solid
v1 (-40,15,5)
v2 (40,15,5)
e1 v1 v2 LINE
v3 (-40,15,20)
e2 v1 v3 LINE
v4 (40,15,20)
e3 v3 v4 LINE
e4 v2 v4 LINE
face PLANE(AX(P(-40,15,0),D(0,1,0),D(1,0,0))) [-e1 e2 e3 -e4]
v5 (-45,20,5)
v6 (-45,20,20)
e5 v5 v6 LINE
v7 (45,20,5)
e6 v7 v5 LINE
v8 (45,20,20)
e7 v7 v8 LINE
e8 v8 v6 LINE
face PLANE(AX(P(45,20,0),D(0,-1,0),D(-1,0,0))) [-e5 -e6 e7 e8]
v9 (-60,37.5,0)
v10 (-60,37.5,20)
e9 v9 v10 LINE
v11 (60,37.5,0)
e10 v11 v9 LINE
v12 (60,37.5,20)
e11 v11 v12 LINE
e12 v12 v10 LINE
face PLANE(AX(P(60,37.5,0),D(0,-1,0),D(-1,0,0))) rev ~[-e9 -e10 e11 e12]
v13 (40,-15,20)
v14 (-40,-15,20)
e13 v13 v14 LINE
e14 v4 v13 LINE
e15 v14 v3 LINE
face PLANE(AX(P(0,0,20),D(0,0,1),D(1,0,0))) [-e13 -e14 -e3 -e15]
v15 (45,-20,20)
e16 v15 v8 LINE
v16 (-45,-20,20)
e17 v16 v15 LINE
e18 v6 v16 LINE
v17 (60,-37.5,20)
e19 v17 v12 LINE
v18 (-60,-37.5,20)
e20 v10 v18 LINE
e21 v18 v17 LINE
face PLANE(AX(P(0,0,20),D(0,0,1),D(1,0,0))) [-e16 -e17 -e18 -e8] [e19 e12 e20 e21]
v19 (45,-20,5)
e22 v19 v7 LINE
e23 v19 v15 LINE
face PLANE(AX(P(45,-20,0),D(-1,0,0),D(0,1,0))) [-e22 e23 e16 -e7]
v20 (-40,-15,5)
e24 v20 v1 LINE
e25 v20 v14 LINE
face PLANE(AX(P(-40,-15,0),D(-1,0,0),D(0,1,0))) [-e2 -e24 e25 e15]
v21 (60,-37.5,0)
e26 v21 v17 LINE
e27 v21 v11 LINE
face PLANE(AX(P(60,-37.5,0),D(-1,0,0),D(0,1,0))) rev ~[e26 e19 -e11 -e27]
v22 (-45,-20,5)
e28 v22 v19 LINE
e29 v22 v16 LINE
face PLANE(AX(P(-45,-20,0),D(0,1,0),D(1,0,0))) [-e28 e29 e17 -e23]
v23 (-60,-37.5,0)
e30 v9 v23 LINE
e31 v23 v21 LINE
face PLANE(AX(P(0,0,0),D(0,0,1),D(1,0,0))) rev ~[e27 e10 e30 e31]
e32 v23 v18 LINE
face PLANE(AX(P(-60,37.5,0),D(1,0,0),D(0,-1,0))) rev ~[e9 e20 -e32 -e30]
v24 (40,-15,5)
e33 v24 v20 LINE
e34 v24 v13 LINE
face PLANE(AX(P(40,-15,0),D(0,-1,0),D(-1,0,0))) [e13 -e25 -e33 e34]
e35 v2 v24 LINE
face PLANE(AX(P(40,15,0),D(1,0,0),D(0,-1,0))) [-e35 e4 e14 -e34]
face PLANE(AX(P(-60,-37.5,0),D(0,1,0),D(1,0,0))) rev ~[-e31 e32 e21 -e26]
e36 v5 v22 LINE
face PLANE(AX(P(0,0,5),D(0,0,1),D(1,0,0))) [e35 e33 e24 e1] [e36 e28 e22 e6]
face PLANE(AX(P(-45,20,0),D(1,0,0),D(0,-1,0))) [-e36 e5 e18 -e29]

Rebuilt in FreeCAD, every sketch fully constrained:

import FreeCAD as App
import Part
import Sketcher
Q = App.Units.Quantity

doc = App.newDocument("Part")
body = doc.addObject("PartDesign::Body", "Body")
body.AllowCompound = True

# Sketch on XY plane
sketch1 = doc.addObject("Sketcher::SketchObject", "Sketch")
body.addObject(sketch1)
sketch1.AttachmentSupport = (doc.XY_Plane, [""])
sketch1.MapMode = "FlatFace"
sketch1.addGeometry(Part.LineSegment(App.Vector(60, -38, 0), App.Vector(60, 38, 0)), False)
sketch1.addGeometry(Part.LineSegment(App.Vector(60, 38, 0), App.Vector(-60, 38, 0)), False)
sketch1.addGeometry(Part.LineSegment(App.Vector(-60, 38, 0), App.Vector(-60, -38, 0)), False)
sketch1.addGeometry(Part.LineSegment(App.Vector(-60, -38, 0), App.Vector(60, -38, 0)), False)
sketch1.addGeometry(Part.LineSegment(App.Vector(-45, 20, 0), App.Vector(45, 20, 0)), False)
sketch1.addGeometry(Part.LineSegment(App.Vector(45, 20, 0), App.Vector(45, -20, 0)), False)
sketch1.addGeometry(Part.LineSegment(App.Vector(45, -20, 0), App.Vector(-45, -20, 0)), False)
sketch1.addGeometry(Part.LineSegment(App.Vector(-45, -20, 0), App.Vector(-45, 20, 0)), False)
sketch1.addGeometry(Part.LineSegment(App.Vector(40, 15, 0), App.Vector(-40, 15, 0)), False)
sketch1.addGeometry(Part.LineSegment(App.Vector(-40, 15, 0), App.Vector(-40, -15, 0)), False)
sketch1.addGeometry(Part.LineSegment(App.Vector(-40, -15, 0), App.Vector(40, -15, 0)), False)
sketch1.addGeometry(Part.LineSegment(App.Vector(40, -15, 0), App.Vector(40, 15, 0)), False)
sketch1.addConstraint(Sketcher.Constraint("Coincident", 0, 2, 1, 1))
sketch1.addConstraint(Sketcher.Constraint("Coincident", 1, 2, 2, 1))
sketch1.addConstraint(Sketcher.Constraint("Coincident", 2, 2, 3, 1))
sketch1.addConstraint(Sketcher.Constraint("Coincident", 3, 2, 0, 1))
sketch1.addConstraint(Sketcher.Constraint("Coincident", 4, 2, 5, 1))
sketch1.addConstraint(Sketcher.Constraint("Coincident", 5, 2, 6, 1))
sketch1.addConstraint(Sketcher.Constraint("Coincident", 6, 2, 7, 1))
sketch1.addConstraint(Sketcher.Constraint("Coincident", 7, 2, 4, 1))
sketch1.addConstraint(Sketcher.Constraint("Coincident", 8, 2, 9, 1))
sketch1.addConstraint(Sketcher.Constraint("Coincident", 9, 2, 10, 1))
sketch1.addConstraint(Sketcher.Constraint("Coincident", 10, 2, 11, 1))
sketch1.addConstraint(Sketcher.Constraint("Coincident", 11, 2, 8, 1))
sketch1.addConstraint(Sketcher.Constraint("Vertical", 0))
sketch1.addConstraint(Sketcher.Constraint("Horizontal", 1))
sketch1.addConstraint(Sketcher.Constraint("Vertical", 2))
sketch1.addConstraint(Sketcher.Constraint("Horizontal", 3))
sketch1.addConstraint(Sketcher.Constraint("Horizontal", 4))
sketch1.addConstraint(Sketcher.Constraint("Vertical", 5))
sketch1.addConstraint(Sketcher.Constraint("Horizontal", 6))
sketch1.addConstraint(Sketcher.Constraint("Vertical", 7))
sketch1.addConstraint(Sketcher.Constraint("Horizontal", 8))
sketch1.addConstraint(Sketcher.Constraint("Vertical", 9))
sketch1.addConstraint(Sketcher.Constraint("Horizontal", 10))
sketch1.addConstraint(Sketcher.Constraint("Vertical", 11))
sketch1.addConstraint(Sketcher.Constraint("Symmetric", 0, 2, 2, 2, -1, 1))
sketch1.addConstraint(Sketcher.Constraint("Symmetric", 4, 2, 6, 2, -1, 1))
sketch1.addConstraint(Sketcher.Constraint("Symmetric", 8, 2, 10, 2, -1, 1))
sketch1.addConstraint(Sketcher.Constraint("DistanceX", 1, 2, 1, 1, Q("120 mm")))
sketch1.addConstraint(Sketcher.Constraint("DistanceX", 4, 1, 4, 2, Q("90 mm")))
sketch1.addConstraint(Sketcher.Constraint("DistanceX", 8, 2, 8, 1, Q("80 mm")))
sketch1.addConstraint(Sketcher.Constraint("DistanceY", 0, 1, 0, 2, Q("75 mm")))
sketch1.addConstraint(Sketcher.Constraint("DistanceY", 5, 2, 5, 1, Q("40 mm")))
sketch1.addConstraint(Sketcher.Constraint("DistanceY", 9, 2, 9, 1, Q("30 mm")))
pad1 = doc.addObject("PartDesign::Pad", "Pad")
body.addObject(pad1)
pad1.Profile = sketch1
pad1.Length = 20

# Sketch on XY plane
sketch2 = doc.addObject("Sketcher::SketchObject", "Sketch001")
body.addObject(sketch2)
sketch2.AttachmentSupport = (doc.XY_Plane, [""])
sketch2.MapMode = "FlatFace"
sketch2.addGeometry(Part.LineSegment(App.Vector(45, -20, 0), App.Vector(45, 20, 0)), False)
sketch2.addGeometry(Part.LineSegment(App.Vector(45, 20, 0), App.Vector(-45, 20, 0)), False)
sketch2.addGeometry(Part.LineSegment(App.Vector(-45, 20, 0), App.Vector(-45, -20, 0)), False)
sketch2.addGeometry(Part.LineSegment(App.Vector(-45, -20, 0), App.Vector(45, -20, 0)), False)
sketch2.addGeometry(Part.LineSegment(App.Vector(-40, -15, 0), App.Vector(-40, 15, 0)), False)
sketch2.addGeometry(Part.LineSegment(App.Vector(-40, 15, 0), App.Vector(40, 15, 0)), False)
sketch2.addGeometry(Part.LineSegment(App.Vector(40, 15, 0), App.Vector(40, -15, 0)), False)
sketch2.addGeometry(Part.LineSegment(App.Vector(40, -15, 0), App.Vector(-40, -15, 0)), False)
sketch2.addConstraint(Sketcher.Constraint("Coincident", 0, 2, 1, 1))
sketch2.addConstraint(Sketcher.Constraint("Coincident", 1, 2, 2, 1))
sketch2.addConstraint(Sketcher.Constraint("Coincident", 2, 2, 3, 1))
sketch2.addConstraint(Sketcher.Constraint("Coincident", 3, 2, 0, 1))
sketch2.addConstraint(Sketcher.Constraint("Coincident", 4, 2, 5, 1))
sketch2.addConstraint(Sketcher.Constraint("Coincident", 5, 2, 6, 1))
sketch2.addConstraint(Sketcher.Constraint("Coincident", 6, 2, 7, 1))
sketch2.addConstraint(Sketcher.Constraint("Coincident", 7, 2, 4, 1))
sketch2.addConstraint(Sketcher.Constraint("Vertical", 0))
sketch2.addConstraint(Sketcher.Constraint("Horizontal", 1))
sketch2.addConstraint(Sketcher.Constraint("Vertical", 2))
sketch2.addConstraint(Sketcher.Constraint("Horizontal", 3))
sketch2.addConstraint(Sketcher.Constraint("Vertical", 4))
sketch2.addConstraint(Sketcher.Constraint("Horizontal", 5))
sketch2.addConstraint(Sketcher.Constraint("Vertical", 6))
sketch2.addConstraint(Sketcher.Constraint("Horizontal", 7))
sketch2.addConstraint(Sketcher.Constraint("Symmetric", 0, 2, 2, 2, -1, 1))
sketch2.addConstraint(Sketcher.Constraint("Symmetric", 4, 2, 6, 2, -1, 1))
sketch2.addConstraint(Sketcher.Constraint("DistanceX", 1, 2, 1, 1, Q("90 mm")))
sketch2.addConstraint(Sketcher.Constraint("DistanceX", 5, 1, 5, 2, Q("80 mm")))
sketch2.addConstraint(Sketcher.Constraint("DistanceY", 0, 1, 0, 2, Q("40 mm")))
sketch2.addConstraint(Sketcher.Constraint("DistanceY", 4, 1, 4, 2, Q("30 mm")))
pad2 = doc.addObject("PartDesign::Pad", "Pad001")
body.addObject(pad2)
pad2.Profile = sketch2
pad2.Length = 5

doc.recompute()
